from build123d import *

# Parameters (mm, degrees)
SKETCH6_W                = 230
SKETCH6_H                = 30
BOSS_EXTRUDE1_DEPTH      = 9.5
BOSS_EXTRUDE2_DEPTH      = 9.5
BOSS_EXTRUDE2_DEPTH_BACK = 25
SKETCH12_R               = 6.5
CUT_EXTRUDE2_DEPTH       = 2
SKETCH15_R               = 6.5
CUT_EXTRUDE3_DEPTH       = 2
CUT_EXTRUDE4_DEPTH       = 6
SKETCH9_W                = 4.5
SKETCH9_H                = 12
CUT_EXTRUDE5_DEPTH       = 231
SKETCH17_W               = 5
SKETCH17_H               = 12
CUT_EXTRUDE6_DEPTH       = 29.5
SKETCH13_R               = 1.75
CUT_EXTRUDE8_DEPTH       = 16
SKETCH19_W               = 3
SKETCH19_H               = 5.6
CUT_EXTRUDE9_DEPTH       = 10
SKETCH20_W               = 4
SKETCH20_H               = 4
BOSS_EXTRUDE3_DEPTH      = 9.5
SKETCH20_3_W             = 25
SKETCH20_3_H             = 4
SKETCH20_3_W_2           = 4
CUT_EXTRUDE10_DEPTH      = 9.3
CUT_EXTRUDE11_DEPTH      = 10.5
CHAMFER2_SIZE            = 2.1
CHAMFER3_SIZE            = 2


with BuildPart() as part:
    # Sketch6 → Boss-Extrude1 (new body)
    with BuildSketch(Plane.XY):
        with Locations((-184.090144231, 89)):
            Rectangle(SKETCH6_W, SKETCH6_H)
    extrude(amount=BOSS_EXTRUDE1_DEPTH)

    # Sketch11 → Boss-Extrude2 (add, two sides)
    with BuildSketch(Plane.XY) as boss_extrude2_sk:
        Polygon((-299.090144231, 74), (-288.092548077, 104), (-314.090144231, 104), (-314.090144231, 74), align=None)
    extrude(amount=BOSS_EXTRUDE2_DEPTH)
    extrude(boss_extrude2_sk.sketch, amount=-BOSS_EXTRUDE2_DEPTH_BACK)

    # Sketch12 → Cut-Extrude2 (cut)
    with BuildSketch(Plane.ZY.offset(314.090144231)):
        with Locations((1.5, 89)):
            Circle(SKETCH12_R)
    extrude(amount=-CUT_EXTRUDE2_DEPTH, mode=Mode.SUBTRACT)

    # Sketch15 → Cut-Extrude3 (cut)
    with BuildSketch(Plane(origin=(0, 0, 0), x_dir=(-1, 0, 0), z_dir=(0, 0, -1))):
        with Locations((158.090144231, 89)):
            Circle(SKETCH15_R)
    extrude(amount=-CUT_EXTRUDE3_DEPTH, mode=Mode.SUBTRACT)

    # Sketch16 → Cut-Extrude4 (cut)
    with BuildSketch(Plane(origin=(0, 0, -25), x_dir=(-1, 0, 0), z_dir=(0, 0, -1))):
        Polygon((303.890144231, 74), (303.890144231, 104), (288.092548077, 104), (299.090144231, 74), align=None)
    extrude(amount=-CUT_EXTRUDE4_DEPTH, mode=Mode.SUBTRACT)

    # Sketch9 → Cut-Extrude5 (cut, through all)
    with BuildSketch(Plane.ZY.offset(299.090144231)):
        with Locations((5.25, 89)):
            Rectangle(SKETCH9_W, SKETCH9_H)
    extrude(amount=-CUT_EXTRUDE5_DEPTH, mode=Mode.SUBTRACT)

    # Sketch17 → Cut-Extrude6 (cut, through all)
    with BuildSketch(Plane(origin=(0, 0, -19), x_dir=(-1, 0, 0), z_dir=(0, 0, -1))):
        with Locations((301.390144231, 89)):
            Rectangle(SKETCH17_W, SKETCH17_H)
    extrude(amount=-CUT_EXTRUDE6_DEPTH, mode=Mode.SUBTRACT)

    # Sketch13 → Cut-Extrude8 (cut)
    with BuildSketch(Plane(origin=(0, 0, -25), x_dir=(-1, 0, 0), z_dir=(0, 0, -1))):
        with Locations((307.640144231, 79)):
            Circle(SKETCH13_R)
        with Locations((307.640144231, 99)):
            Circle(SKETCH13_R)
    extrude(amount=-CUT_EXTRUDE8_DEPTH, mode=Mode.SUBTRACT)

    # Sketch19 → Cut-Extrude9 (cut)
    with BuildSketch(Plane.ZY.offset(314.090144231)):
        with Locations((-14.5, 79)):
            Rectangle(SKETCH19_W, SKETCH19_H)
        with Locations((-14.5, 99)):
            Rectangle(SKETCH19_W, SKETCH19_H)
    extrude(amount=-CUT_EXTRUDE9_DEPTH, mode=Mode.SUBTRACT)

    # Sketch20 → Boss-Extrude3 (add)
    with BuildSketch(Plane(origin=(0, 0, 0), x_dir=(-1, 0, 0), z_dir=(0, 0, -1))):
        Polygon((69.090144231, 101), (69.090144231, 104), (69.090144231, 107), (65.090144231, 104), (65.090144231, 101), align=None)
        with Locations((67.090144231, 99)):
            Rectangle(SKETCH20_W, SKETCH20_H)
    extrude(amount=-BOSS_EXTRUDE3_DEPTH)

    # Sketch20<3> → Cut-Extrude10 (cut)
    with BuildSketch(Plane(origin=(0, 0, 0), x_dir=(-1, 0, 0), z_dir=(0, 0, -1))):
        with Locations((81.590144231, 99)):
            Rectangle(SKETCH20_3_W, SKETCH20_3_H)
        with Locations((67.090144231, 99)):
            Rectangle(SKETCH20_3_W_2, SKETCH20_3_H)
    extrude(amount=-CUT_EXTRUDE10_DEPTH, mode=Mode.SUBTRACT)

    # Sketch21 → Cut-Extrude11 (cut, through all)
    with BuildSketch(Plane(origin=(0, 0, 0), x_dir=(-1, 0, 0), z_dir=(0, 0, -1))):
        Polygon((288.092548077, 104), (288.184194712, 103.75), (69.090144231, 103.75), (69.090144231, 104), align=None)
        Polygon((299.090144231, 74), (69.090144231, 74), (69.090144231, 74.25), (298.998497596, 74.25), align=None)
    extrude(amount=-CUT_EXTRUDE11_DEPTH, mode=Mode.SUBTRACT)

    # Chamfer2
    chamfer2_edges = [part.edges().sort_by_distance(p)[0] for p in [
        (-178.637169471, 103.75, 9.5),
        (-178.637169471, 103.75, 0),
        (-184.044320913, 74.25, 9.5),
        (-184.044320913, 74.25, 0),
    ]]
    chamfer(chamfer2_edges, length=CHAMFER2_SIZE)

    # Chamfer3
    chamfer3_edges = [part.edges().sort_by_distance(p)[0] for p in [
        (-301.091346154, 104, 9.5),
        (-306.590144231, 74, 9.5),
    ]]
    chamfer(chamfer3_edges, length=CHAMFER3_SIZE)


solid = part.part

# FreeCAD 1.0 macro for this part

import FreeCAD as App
import Part
import Sketcher
Q = App.Units.Quantity


def edges_at(feature, points):
    """Names of the edges that pass closest to the given points."""
    edges = feature.Shape.Edges
    near = lambda p: min(range(len(edges)), key=lambda i: edges[i].distToShape(Part.Vertex(*p))[0])
    return sorted({f"Edge{near(p) + 1}" for p in points})

doc = App.newDocument("Part")
params = doc.addObject("Spreadsheet::Sheet", "Params")
for row, (alias, value) in enumerate([
    ("sketch1_width", "230 mm"),
    ("sketch1_height", "30 mm"),
    ("pad1_length", "9.5 mm"),
    ("sketch2_width", "15 mm"),
    ("sketch2_height", "30 mm"),
    ("pad2_length", "9.5 mm"),
    ("pad2_length2", "25 mm"),
    ("sketch3_diameter", "13 mm"),
    ("pocket1_length", "2 mm"),
    ("sketch4_diameter", "13 mm"),
    ("pocket2_length", "2 mm"),
    ("sketch5_height", "30 mm"),
    ("sketch5_width", "4.8 mm"),
    ("pocket3_length", "6 mm"),
    ("sketch6_width", "12 mm"),
    ("sketch6_height", "4.5 mm"),
    ("sketch7_width", "5 mm"),
    ("sketch7_height", "12 mm"),
    ("sketch8_diameter", "3.5 mm"),
    ("pocket6_length", "16 mm"),
    ("sketch9_height", "3 mm"),
    ("sketch9_width", "5.6 mm"),
    ("pocket7_length", "10 mm"),
    ("sketch10_width", "4 mm"),
    ("sketch10_height", "7 mm"),
    ("sketch10_height2", "10 mm"),
    ("pad3_length", "9.5 mm"),
    ("sketch11_width", "29 mm"),
    ("sketch11_height", "4 mm"),
    ("pocket8_length", "9.3 mm"),
    ("sketch12_width", "230 mm"),
    ("sketch12_height", "0.25 mm"),
    ("chamfer_size", "2.1 mm"),
    ("chamfer2_size", "2 mm"),
], start=1):
    params.set(f"A{row}", alias)
    params.set(f"B{row}", "=" + value)
    params.setAlias(f"B{row}", alias)

body = doc.addObject("PartDesign::Body", "Body")

# Sketch on XY plane
sketch1 = body.newObject("Sketcher::SketchObject", "Sketch")
sketch1.AttachmentSupport = (doc.getObject("XY_Plane"), [""])
sketch1.MapMode = "FlatFace"
sketch1.addGeometry([
    Part.LineSegment(App.Vector(-299, 104, 0), App.Vector(-299, 74, 0)),
    Part.LineSegment(App.Vector(-299, 74, 0), App.Vector(-69, 74, 0)),
    Part.LineSegment(App.Vector(-69, 74, 0), App.Vector(-69, 104, 0)),
    Part.LineSegment(App.Vector(-69, 104, 0), App.Vector(-299, 104, 0)),
], False)
sketch1.addConstraint([
    Sketcher.Constraint("Coincident", 0, 2, 1, 1),
    Sketcher.Constraint("Coincident", 1, 2, 2, 1),
    Sketcher.Constraint("Coincident", 2, 2, 3, 1),
    Sketcher.Constraint("Coincident", 3, 2, 0, 1),
    Sketcher.Constraint("Vertical", 0),
    Sketcher.Constraint("Horizontal", 1),
    Sketcher.Constraint("Vertical", 2),
    Sketcher.Constraint("Horizontal", 3),
    Sketcher.Constraint("DistanceX", 1, 1, 1, 2, Q("230 mm")),
    Sketcher.Constraint("DistanceY", 0, 2, 0, 1, Q("30 mm")),
    Sketcher.Constraint("DistanceY", -1, 1, 0, 2, Q("74 mm")),
    Sketcher.Constraint("DistanceX", 0, 2, -1, 1, Q("299.090144 mm")),
])
sketch1.setExpression("Constraints[8]", "Params.sketch1_width")
sketch1.setExpression("Constraints[9]", "Params.sketch1_height")
pad1 = body.newObject("PartDesign::Pad", "Pad")
pad1.Profile = sketch1
pad1.setExpression("Length", "Params.pad1_length")

# Sketch on XY plane
sketch2 = body.newObject("Sketcher::SketchObject", "Sketch001")
sketch2.AttachmentSupport = (doc.getObject("XY_Plane"), [""])
sketch2.MapMode = "FlatFace"
sketch2.addGeometry([
    Part.LineSegment(App.Vector(-299, 74, 0), App.Vector(-288, 104, 0)),
    Part.LineSegment(App.Vector(-288, 104, 0), App.Vector(-314, 104, 0)),
    Part.LineSegment(App.Vector(-314, 104, 0), App.Vector(-314, 74, 0)),
    Part.LineSegment(App.Vector(-314, 74, 0), App.Vector(-299, 74, 0)),
], False)
sketch2.addConstraint([
    Sketcher.Constraint("Coincident", 0, 2, 1, 1),
    Sketcher.Constraint("Coincident", 1, 2, 2, 1),
    Sketcher.Constraint("Coincident", 2, 2, 3, 1),
    Sketcher.Constraint("Coincident", 3, 2, 0, 1),
    Sketcher.Constraint("Horizontal", 1),
    Sketcher.Constraint("Vertical", 2),
    Sketcher.Constraint("Horizontal", 3),
    Sketcher.Constraint("DistanceX", 3, 1, 3, 2, Q("15 mm")),
    Sketcher.Constraint("DistanceY", 2, 2, 2, 1, Q("30 mm")),
    Sketcher.Constraint("DistanceY", -1, 1, 0, 2, Q("104 mm")),
    Sketcher.Constraint("DistanceX", 1, 2, 1, 1, Q("25.997596 mm")),
    Sketcher.Constraint("DistanceX", 0, 2, -1, 1, Q("288.092548 mm")),
])
sketch2.setExpression("Constraints[7]", "Params.sketch2_width")
sketch2.setExpression("Constraints[8]", "Params.sketch2_height")
pad2 = body.newObject("PartDesign::Pad", "Pad001")
pad2.Profile = sketch2
pad2.Type = "TwoLengths"
pad2.setExpression("Length", "Params.pad2_length")
pad2.setExpression("Length2", "Params.pad2_length2")

# Sketch on YZ plane
sketch3 = body.newObject("Sketcher::SketchObject", "Sketch002")
sketch3.AttachmentSupport = (doc.getObject("YZ_Plane"), [""])
sketch3.MapMode = "FlatFace"
sketch3.AttachmentOffset = App.Placement(App.Vector(0, 0, -314.090144), App.Rotation())
sketch3.addGeometry(Part.Circle(App.Vector(89, 2, 0), App.Vector(0, 0, 1), 6), False)
sketch3.addConstraint([
    Sketcher.Constraint("Diameter", 0, Q("13 mm")),
    Sketcher.Constraint("DistanceX", -1, 1, 0, 3, Q("89 mm")),
    Sketcher.Constraint("DistanceY", -1, 1, 0, 3, Q("1.5 mm")),
])
sketch3.setExpression("Constraints[0]", "Params.sketch3_diameter")
pocket1 = body.newObject("PartDesign::Pocket", "Pocket")
pocket1.Profile = sketch3
pocket1.setExpression("Length", "Params.pocket1_length")
pocket1.Reversed = True

# Sketch on XY plane
sketch4 = body.newObject("Sketcher::SketchObject", "Sketch003")
sketch4.AttachmentSupport = (doc.getObject("XY_Plane"), [""])
sketch4.MapMode = "FlatFace"
sketch4.addGeometry(Part.Circle(App.Vector(-158, 89, 0), App.Vector(0, 0, 1), 6), False)
sketch4.addConstraint([
    Sketcher.Constraint("Diameter", 0, Q("13 mm")),
    Sketcher.Constraint("DistanceY", -1, 1, 0, 3, Q("89 mm")),
    Sketcher.Constraint("DistanceX", 0, 3, -1, 1, Q("158.090144 mm")),
])
sketch4.setExpression("Constraints[0]", "Params.sketch4_diameter")
pocket2 = body.newObject("PartDesign::Pocket", "Pocket001")
pocket2.Profile = sketch4
pocket2.setExpression("Length", "Params.pocket2_length")
pocket2.Reversed = True

# Sketch on XY plane
sketch5 = body.newObject("Sketcher::SketchObject", "Sketch004")
sketch5.AttachmentSupport = (doc.getObject("XY_Plane"), [""])
sketch5.MapMode = "FlatFace"
sketch5.AttachmentOffset = App.Placement(App.Vector(0, 0, -25), App.Rotation())
sketch5.addGeometry([
    Part.LineSegment(App.Vector(-303.9, 74, 0), App.Vector(-303.9, 104, 0)),
    Part.LineSegment(App.Vector(-303.9, 104, 0), App.Vector(-288.1, 104, 0)),
    Part.LineSegment(App.Vector(-288.1, 104, 0), App.Vector(-299.1, 74, 0)),
    Part.LineSegment(App.Vector(-299.1, 74, 0), App.Vector(-303.9, 74, 0)),
], False)
sketch5.addConstraint([
    Sketcher.Constraint("Coincident", 0, 2, 1, 1),
    Sketcher.Constraint("Coincident", 1, 2, 2, 1),
    Sketcher.Constraint("Coincident", 2, 2, 3, 1),
    Sketcher.Constraint("Coincident", 3, 2, 0, 1),
    Sketcher.Constraint("Vertical", 0),
    Sketcher.Constraint("Horizontal", 1),
    Sketcher.Constraint("Horizontal", 3),
    Sketcher.Constraint("DistanceY", 0, 1, 0, 2, Q("30 mm")),
    Sketcher.Constraint("DistanceX", 3, 2, 3, 1, Q("4.8 mm")),
    Sketcher.Constraint("DistanceY", -1, 1, 0, 2, Q("104 mm")),
    Sketcher.Constraint("DistanceX", 1, 1, 1, 2, Q("15.797596 mm")),
    Sketcher.Constraint("DistanceX", 1, 2, -1, 1, Q("288.092548 mm")),
])
sketch5.setExpression("Constraints[7]", "Params.sketch5_height")
sketch5.setExpression("Constraints[8]", "Params.sketch5_width")
pocket3 = body.newObject("PartDesign::Pocket", "Pocket002")
pocket3.Profile = sketch5
pocket3.setExpression("Length", "Params.pocket3_length")
pocket3.Reversed = True

# Sketch on YZ plane
sketch6 = body.newObject("Sketcher::SketchObject", "Sketch005")
sketch6.AttachmentSupport = (doc.getObject("YZ_Plane"), [""])
sketch6.MapMode = "FlatFace"
sketch6.AttachmentOffset = App.Placement(App.Vector(0, 0, -299.090144), App.Rotation())
sketch6.addGeometry([
    Part.LineSegment(App.Vector(95, 3, 0), App.Vector(83, 3, 0)),
    Part.LineSegment(App.Vector(83, 3, 0), App.Vector(83, 7.5, 0)),
    Part.LineSegment(App.Vector(83, 7.5, 0), App.Vector(95, 7.5, 0)),
    Part.LineSegment(App.Vector(95, 7.5, 0), App.Vector(95, 3, 0)),
], False)
sketch6.addConstraint([
    Sketcher.Constraint("Coincident", 0, 2, 1, 1),
    Sketcher.Constraint("Coincident", 1, 2, 2, 1),
    Sketcher.Constraint("Coincident", 2, 2, 3, 1),
    Sketcher.Constraint("Coincident", 3, 2, 0, 1),
    Sketcher.Constraint("Horizontal", 0),
    Sketcher.Constraint("Vertical", 1),
    Sketcher.Constraint("Horizontal", 2),
    Sketcher.Constraint("Vertical", 3),
    Sketcher.Constraint("DistanceX", 0, 2, 0, 1, Q("12 mm")),
    Sketcher.Constraint("DistanceY", 1, 1, 1, 2, Q("4.5 mm")),
    Sketcher.Constraint("DistanceX", -1, 1, 0, 2, Q("83 mm")),
    Sketcher.Constraint("DistanceY", -1, 1, 0, 2, Q("3 mm")),
])
sketch6.setExpression("Constraints[8]", "Params.sketch6_width")
sketch6.setExpression("Constraints[9]", "Params.sketch6_height")
pocket4 = body.newObject("PartDesign::Pocket", "Pocket003")
pocket4.Profile = sketch6
pocket4.Type = "ThroughAll"
pocket4.Reversed = True

# Sketch on XY plane
sketch7 = body.newObject("Sketcher::SketchObject", "Sketch006")
sketch7.AttachmentSupport = (doc.getObject("XY_Plane"), [""])
sketch7.MapMode = "FlatFace"
sketch7.AttachmentOffset = App.Placement(App.Vector(0, 0, -19), App.Rotation())
sketch7.addGeometry([
    Part.LineSegment(App.Vector(-299, 95, 0), App.Vector(-299, 83, 0)),
    Part.LineSegment(App.Vector(-299, 83, 0), App.Vector(-304, 83, 0)),
    Part.LineSegment(App.Vector(-304, 83, 0), App.Vector(-304, 95, 0)),
    Part.LineSegment(App.Vector(-304, 95, 0), App.Vector(-299, 95, 0)),
], False)
sketch7.addConstraint([
    Sketcher.Constraint("Coincident", 0, 2, 1, 1),
    Sketcher.Constraint("Coincident", 1, 2, 2, 1),
    Sketcher.Constraint("Coincident", 2, 2, 3, 1),
    Sketcher.Constraint("Coincident", 3, 2, 0, 1),
    Sketcher.Constraint("Vertical", 0),
    Sketcher.Constraint("Horizontal", 1),
    Sketcher.Constraint("Vertical", 2),
    Sketcher.Constraint("Horizontal", 3),
    Sketcher.Constraint("DistanceX", 1, 2, 1, 1, Q("5 mm")),
    Sketcher.Constraint("DistanceY", 0, 2, 0, 1, Q("12 mm")),
    Sketcher.Constraint("DistanceY", -1, 1, 0, 2, Q("83 mm")),
    Sketcher.Constraint("DistanceX", 0, 2, -1, 1, Q("298.890144 mm")),
])
sketch7.setExpression("Constraints[8]", "Params.sketch7_width")
sketch7.setExpression("Constraints[9]", "Params.sketch7_height")
pocket5 = body.newObject("PartDesign::Pocket", "Pocket004")
pocket5.Profile = sketch7
pocket5.Type = "ThroughAll"
pocket5.Reversed = True

# Sketch on XY plane
sketch8 = body.newObject("Sketcher::SketchObject", "Sketch007")
sketch8.AttachmentSupport = (doc.getObject("XY_Plane"), [""])
sketch8.MapMode = "FlatFace"
sketch8.AttachmentOffset = App.Placement(App.Vector(0, 0, -25), App.Rotation())
sketch8.addGeometry([
    Part.Circle(App.Vector(-307.6, 79, 0), App.Vector(0, 0, 1), 1.8),
    Part.Circle(App.Vector(-307.6, 99, 0), App.Vector(0, 0, 1), 1.8),
], False)
sketch8.addConstraint([
    Sketcher.Constraint("Equal", 0, 1),
    Sketcher.Constraint("Vertical", 0, 3, 1, 3),
    Sketcher.Constraint("Diameter", 0, Q("3.5 mm")),
    Sketcher.Constraint("DistanceY", -1, 1, 0, 3, Q("79 mm")),
    Sketcher.Constraint("DistanceY", -1, 1, 1, 3, Q("99 mm")),
    Sketcher.Constraint("DistanceX", 0, 3, -1, 1, Q("307.640144 mm")),
])
sketch8.setExpression("Constraints[2]", "Params.sketch8_diameter")
pocket6 = body.newObject("PartDesign::Pocket", "Pocket005")
pocket6.Profile = sketch8
pocket6.setExpression("Length", "Params.pocket6_length")
pocket6.Reversed = True

# Sketch on YZ plane
sketch9 = body.newObject("Sketcher::SketchObject", "Sketch008")
sketch9.AttachmentSupport = (doc.getObject("YZ_Plane"), [""])
sketch9.MapMode = "FlatFace"
sketch9.AttachmentOffset = App.Placement(App.Vector(0, 0, -314.090144), App.Rotation())
sketch9.addGeometry([
    Part.LineSegment(App.Vector(81.8, -16, 0), App.Vector(76.2, -16, 0)),  # 0
    Part.LineSegment(App.Vector(76.2, -16, 0), App.Vector(76.2, -13, 0)),  # 1
    Part.LineSegment(App.Vector(76.2, -13, 0), App.Vector(81.8, -13, 0)),  # 2
    Part.LineSegment(App.Vector(81.8, -13, 0), App.Vector(81.8, -16, 0)),  # 3
    Part.LineSegment(App.Vector(101.8, -16, 0), App.Vector(96.2, -16, 0)),  # 4
    Part.LineSegment(App.Vector(96.2, -16, 0), App.Vector(96.2, -13, 0)),  # 5
    Part.LineSegment(App.Vector(96.2, -13, 0), App.Vector(101.8, -13, 0)),  # 6
    Part.LineSegment(App.Vector(101.8, -13, 0), App.Vector(101.8, -16, 0)),  # 7
], False)
sketch9.addConstraint([
    Sketcher.Constraint("Coincident", 0, 2, 1, 1),
    Sketcher.Constraint("Coincident", 1, 2, 2, 1),
    Sketcher.Constraint("Coincident", 2, 2, 3, 1),
    Sketcher.Constraint("Coincident", 3, 2, 0, 1),
    Sketcher.Constraint("Coincident", 4, 2, 5, 1),
    Sketcher.Constraint("Coincident", 5, 2, 6, 1),
    Sketcher.Constraint("Coincident", 6, 2, 7, 1),
    Sketcher.Constraint("Coincident", 7, 2, 4, 1),
    Sketcher.Constraint("Horizontal", 0),
    Sketcher.Constraint("Vertical", 1),
    Sketcher.Constraint("Horizontal", 2),
    Sketcher.Constraint("Vertical", 3),
    Sketcher.Constraint("Horizontal", 4),
    Sketcher.Constraint("Vertical", 5),
    Sketcher.Constraint("Horizontal", 6),
    Sketcher.Constraint("Vertical", 7),
    Sketcher.Constraint("Horizontal", 3, 2, 4, 2),
    Sketcher.Constraint("Horizontal", 2, 2, 5, 2),
    Sketcher.Constraint("Equal", 2, 4),
    Sketcher.Constraint("DistanceY", 1, 1, 1, 2, Q("3 mm")),
    Sketcher.Constraint("DistanceX", 0, 2, 0, 1, Q("5.6 mm")),
    Sketcher.Constraint("DistanceY", 0, 2, -1, 1, Q("16 mm")),
    Sketcher.Constraint("DistanceX", 0, 2, 4, 2, Q("20 mm")),
    Sketcher.Constraint("DistanceX", -1, 1, 0, 2, Q("76.2 mm")),
])
sketch9.setExpression("Constraints[19]", "Params.sketch9_height")
sketch9.setExpression("Constraints[20]", "Params.sketch9_width")
pocket7 = body.newObject("PartDesign::Pocket", "Pocket006")
pocket7.Profile = sketch9
pocket7.setExpression("Length", "Params.pocket7_length")
pocket7.Reversed = True

# Sketch on XY plane
sketch10 = body.newObject("Sketcher::SketchObject", "Sketch009")
sketch10.AttachmentSupport = (doc.getObject("XY_Plane"), [""])
sketch10.MapMode = "FlatFace"
sketch10.addGeometry([
    Part.LineSegment(App.Vector(-69.1, 107, 0), App.Vector(-65.1, 104, 0)),
    Part.LineSegment(App.Vector(-65.1, 104, 0), App.Vector(-65.1, 97, 0)),
    Part.LineSegment(App.Vector(-65.1, 97, 0), App.Vector(-69.1, 97, 0)),
    Part.LineSegment(App.Vector(-69.1, 97, 0), App.Vector(-69.1, 107, 0)),
], False)
sketch10.addConstraint([
    Sketcher.Constraint("Coincident", 0, 2, 1, 1),
    Sketcher.Constraint("Coincident", 1, 2, 2, 1),
    Sketcher.Constraint("Coincident", 2, 2, 3, 1),
    Sketcher.Constraint("Coincident", 3, 2, 0, 1),
    Sketcher.Constraint("Vertical", 1),
    Sketcher.Constraint("Horizontal", 2),
    Sketcher.Constraint("Vertical", 3),
    Sketcher.Constraint("DistanceX", 2, 2, 2, 1, Q("4 mm")),
    Sketcher.Constraint("DistanceY", 1, 2, 1, 1, Q("7 mm")),
    Sketcher.Constraint("DistanceY", 3, 1, 3, 2, Q("10 mm")),
    Sketcher.Constraint("DistanceY", -1, 1, 0, 2, Q("104 mm")),
    Sketcher.Constraint("DistanceX", 0, 2, -1, 1, Q("65.090144 mm")),
])
sketch10.setExpression("Constraints[7]", "Params.sketch10_width")
sketch10.setExpression("Constraints[8]", "Params.sketch10_height")
sketch10.setExpression("Constraints[9]", "Params.sketch10_height2")
pad3 = body.newObject("PartDesign::Pad", "Pad002")
pad3.Profile = sketch10
pad3.setExpression("Length", "Params.pad3_length")

# Sketch on XY plane
sketch11 = body.newObject("Sketcher::SketchObject", "Sketch010")
sketch11.AttachmentSupport = (doc.getObject("XY_Plane"), [""])
sketch11.MapMode = "FlatFace"
sketch11.addGeometry([
    Part.LineSegment(App.Vector(-94.1, 97, 0), App.Vector(-94.1, 101, 0)),
    Part.LineSegment(App.Vector(-94.1, 101, 0), App.Vector(-65.1, 101, 0)),
    Part.LineSegment(App.Vector(-65.1, 101, 0), App.Vector(-65.1, 97, 0)),
    Part.LineSegment(App.Vector(-65.1, 97, 0), App.Vector(-94.1, 97, 0)),
], False)
sketch11.addConstraint([
    Sketcher.Constraint("Coincident", 0, 2, 1, 1),
    Sketcher.Constraint("Coincident", 1, 2, 2, 1),
    Sketcher.Constraint("Coincident", 2, 2, 3, 1),
    Sketcher.Constraint("Coincident", 3, 2, 0, 1),
    Sketcher.Constraint("Vertical", 0),
    Sketcher.Constraint("Horizontal", 1),
    Sketcher.Constraint("Vertical", 2),
    Sketcher.Constraint("Horizontal", 3),
    Sketcher.Constraint("DistanceX", 1, 1, 1, 2, Q("29 mm")),
    Sketcher.Constraint("DistanceY", 0, 1, 0, 2, Q("4 mm")),
    Sketcher.Constraint("DistanceY", -1, 1, 0, 2, Q("101 mm")),
    Sketcher.Constraint("DistanceX", 0, 2, -1, 1, Q("94.090144 mm")),
])
sketch11.setExpression("Constraints[8]", "Params.sketch11_width")
sketch11.setExpression("Constraints[9]", "Params.sketch11_height")
pocket8 = body.newObject("PartDesign::Pocket", "Pocket007")
pocket8.Profile = sketch11
pocket8.setExpression("Length", "Params.pocket8_length")
pocket8.Reversed = True

# Sketch on XY plane
sketch12 = body.newObject("Sketcher::SketchObject", "Sketch011")
sketch12.AttachmentSupport = (doc.getObject("XY_Plane"), [""])
sketch12.MapMode = "FlatFace"
sketch12.addGeometry([
    Part.LineSegment(App.Vector(-288.18, 103.75, 0), App.Vector(-288.09, 104, 0)),  # 0
    Part.LineSegment(App.Vector(-288.09, 104, 0), App.Vector(-69.09, 104, 0)),  # 1
    Part.LineSegment(App.Vector(-69.09, 104, 0), App.Vector(-69.09, 103.75, 0)),  # 2
    Part.LineSegment(App.Vector(-69.09, 103.75, 0), App.Vector(-288.18, 103.75, 0)),  # 3
    Part.LineSegment(App.Vector(-69.09, 74, 0), App.Vector(-299.09, 74, 0)),  # 4
    Part.LineSegment(App.Vector(-299.09, 74, 0), App.Vector(-299, 74.25, 0)),  # 5
    Part.LineSegment(App.Vector(-299, 74.25, 0), App.Vector(-69.09, 74.25, 0)),  # 6
    Part.LineSegment(App.Vector(-69.09, 74.25, 0), App.Vector(-69.09, 74, 0)),  # 7
], False)
sketch12.addConstraint([
    Sketcher.Constraint("Coincident", 0, 2, 1, 1),
    Sketcher.Constraint("Coincident", 1, 2, 2, 1),
    Sketcher.Constraint("Coincident", 2, 2, 3, 1),
    Sketcher.Constraint("Coincident", 3, 2, 0, 1),
    Sketcher.Constraint("Coincident", 4, 2, 5, 1),
    Sketcher.Constraint("Coincident", 5, 2, 6, 1),
    Sketcher.Constraint("Coincident", 6, 2, 7, 1),
    Sketcher.Constraint("Coincident", 7, 2, 4, 1),
    Sketcher.Constraint("Horizontal", 1),
    Sketcher.Constraint("Vertical", 2),
    Sketcher.Constraint("Horizontal", 3),
    Sketcher.Constraint("Horizontal", 4),
    Sketcher.Constraint("Horizontal", 6),
    Sketcher.Constraint("Vertical", 7),
    Sketcher.Constraint("Parallel", 0, 5),
    Sketcher.Constraint("Vertical", 2, 2, 6, 2),
    Sketcher.Constraint("Equal", 2, 7),
    Sketcher.Constraint("DistanceX", 4, 2, 4, 1, Q("230 mm")),
    Sketcher.Constraint("DistanceY", -1, 1, 0, 2, Q("104 mm")),
    Sketcher.Constraint("DistanceY", -1, 1, 4, 2, Q("74 mm")),
    Sketcher.Constraint("DistanceY", 2, 2, 2, 1, Q("0.25 mm")),
    Sketcher.Constraint("DistanceX", 3, 2, 3, 1, Q("219.09405 mm")),
    Sketcher.Constraint("Distance", 0, Q("0.266269 mm")),
    Sketcher.Constraint("DistanceX", 0, 2, -1, 1, Q("288.092548 mm")),
])
sketch12.setExpression("Constraints[17]", "Params.sketch12_width")
sketch12.setExpression("Constraints[20]", "Params.sketch12_height")
pocket9 = body.newObject("PartDesign::Pocket", "Pocket008")
pocket9.Profile = sketch12
pocket9.Type = "ThroughAll"
pocket9.Reversed = True
doc.recompute()

chamfer = body.newObject("PartDesign::Chamfer", "Chamfer")
chamfer.Base = (pocket9, edges_at(pocket9, [
    (-178.637, 103.75, 9.5),
    (-178.637, 103.75, 0),
    (-184.044, 74.25, 9.5),
    (-184.044, 74.25, 0),
]))
chamfer.setExpression("Size", "Params.chamfer_size")
doc.recompute()

chamfer2 = body.newObject("PartDesign::Chamfer", "Chamfer001")
chamfer2.Base = (chamfer, edges_at(chamfer, [(-301.091, 104, 9.5), (-306.59, 74, 9.5)]))
chamfer2.setExpression("Size", "Params.chamfer2_size")

doc.recompute()
